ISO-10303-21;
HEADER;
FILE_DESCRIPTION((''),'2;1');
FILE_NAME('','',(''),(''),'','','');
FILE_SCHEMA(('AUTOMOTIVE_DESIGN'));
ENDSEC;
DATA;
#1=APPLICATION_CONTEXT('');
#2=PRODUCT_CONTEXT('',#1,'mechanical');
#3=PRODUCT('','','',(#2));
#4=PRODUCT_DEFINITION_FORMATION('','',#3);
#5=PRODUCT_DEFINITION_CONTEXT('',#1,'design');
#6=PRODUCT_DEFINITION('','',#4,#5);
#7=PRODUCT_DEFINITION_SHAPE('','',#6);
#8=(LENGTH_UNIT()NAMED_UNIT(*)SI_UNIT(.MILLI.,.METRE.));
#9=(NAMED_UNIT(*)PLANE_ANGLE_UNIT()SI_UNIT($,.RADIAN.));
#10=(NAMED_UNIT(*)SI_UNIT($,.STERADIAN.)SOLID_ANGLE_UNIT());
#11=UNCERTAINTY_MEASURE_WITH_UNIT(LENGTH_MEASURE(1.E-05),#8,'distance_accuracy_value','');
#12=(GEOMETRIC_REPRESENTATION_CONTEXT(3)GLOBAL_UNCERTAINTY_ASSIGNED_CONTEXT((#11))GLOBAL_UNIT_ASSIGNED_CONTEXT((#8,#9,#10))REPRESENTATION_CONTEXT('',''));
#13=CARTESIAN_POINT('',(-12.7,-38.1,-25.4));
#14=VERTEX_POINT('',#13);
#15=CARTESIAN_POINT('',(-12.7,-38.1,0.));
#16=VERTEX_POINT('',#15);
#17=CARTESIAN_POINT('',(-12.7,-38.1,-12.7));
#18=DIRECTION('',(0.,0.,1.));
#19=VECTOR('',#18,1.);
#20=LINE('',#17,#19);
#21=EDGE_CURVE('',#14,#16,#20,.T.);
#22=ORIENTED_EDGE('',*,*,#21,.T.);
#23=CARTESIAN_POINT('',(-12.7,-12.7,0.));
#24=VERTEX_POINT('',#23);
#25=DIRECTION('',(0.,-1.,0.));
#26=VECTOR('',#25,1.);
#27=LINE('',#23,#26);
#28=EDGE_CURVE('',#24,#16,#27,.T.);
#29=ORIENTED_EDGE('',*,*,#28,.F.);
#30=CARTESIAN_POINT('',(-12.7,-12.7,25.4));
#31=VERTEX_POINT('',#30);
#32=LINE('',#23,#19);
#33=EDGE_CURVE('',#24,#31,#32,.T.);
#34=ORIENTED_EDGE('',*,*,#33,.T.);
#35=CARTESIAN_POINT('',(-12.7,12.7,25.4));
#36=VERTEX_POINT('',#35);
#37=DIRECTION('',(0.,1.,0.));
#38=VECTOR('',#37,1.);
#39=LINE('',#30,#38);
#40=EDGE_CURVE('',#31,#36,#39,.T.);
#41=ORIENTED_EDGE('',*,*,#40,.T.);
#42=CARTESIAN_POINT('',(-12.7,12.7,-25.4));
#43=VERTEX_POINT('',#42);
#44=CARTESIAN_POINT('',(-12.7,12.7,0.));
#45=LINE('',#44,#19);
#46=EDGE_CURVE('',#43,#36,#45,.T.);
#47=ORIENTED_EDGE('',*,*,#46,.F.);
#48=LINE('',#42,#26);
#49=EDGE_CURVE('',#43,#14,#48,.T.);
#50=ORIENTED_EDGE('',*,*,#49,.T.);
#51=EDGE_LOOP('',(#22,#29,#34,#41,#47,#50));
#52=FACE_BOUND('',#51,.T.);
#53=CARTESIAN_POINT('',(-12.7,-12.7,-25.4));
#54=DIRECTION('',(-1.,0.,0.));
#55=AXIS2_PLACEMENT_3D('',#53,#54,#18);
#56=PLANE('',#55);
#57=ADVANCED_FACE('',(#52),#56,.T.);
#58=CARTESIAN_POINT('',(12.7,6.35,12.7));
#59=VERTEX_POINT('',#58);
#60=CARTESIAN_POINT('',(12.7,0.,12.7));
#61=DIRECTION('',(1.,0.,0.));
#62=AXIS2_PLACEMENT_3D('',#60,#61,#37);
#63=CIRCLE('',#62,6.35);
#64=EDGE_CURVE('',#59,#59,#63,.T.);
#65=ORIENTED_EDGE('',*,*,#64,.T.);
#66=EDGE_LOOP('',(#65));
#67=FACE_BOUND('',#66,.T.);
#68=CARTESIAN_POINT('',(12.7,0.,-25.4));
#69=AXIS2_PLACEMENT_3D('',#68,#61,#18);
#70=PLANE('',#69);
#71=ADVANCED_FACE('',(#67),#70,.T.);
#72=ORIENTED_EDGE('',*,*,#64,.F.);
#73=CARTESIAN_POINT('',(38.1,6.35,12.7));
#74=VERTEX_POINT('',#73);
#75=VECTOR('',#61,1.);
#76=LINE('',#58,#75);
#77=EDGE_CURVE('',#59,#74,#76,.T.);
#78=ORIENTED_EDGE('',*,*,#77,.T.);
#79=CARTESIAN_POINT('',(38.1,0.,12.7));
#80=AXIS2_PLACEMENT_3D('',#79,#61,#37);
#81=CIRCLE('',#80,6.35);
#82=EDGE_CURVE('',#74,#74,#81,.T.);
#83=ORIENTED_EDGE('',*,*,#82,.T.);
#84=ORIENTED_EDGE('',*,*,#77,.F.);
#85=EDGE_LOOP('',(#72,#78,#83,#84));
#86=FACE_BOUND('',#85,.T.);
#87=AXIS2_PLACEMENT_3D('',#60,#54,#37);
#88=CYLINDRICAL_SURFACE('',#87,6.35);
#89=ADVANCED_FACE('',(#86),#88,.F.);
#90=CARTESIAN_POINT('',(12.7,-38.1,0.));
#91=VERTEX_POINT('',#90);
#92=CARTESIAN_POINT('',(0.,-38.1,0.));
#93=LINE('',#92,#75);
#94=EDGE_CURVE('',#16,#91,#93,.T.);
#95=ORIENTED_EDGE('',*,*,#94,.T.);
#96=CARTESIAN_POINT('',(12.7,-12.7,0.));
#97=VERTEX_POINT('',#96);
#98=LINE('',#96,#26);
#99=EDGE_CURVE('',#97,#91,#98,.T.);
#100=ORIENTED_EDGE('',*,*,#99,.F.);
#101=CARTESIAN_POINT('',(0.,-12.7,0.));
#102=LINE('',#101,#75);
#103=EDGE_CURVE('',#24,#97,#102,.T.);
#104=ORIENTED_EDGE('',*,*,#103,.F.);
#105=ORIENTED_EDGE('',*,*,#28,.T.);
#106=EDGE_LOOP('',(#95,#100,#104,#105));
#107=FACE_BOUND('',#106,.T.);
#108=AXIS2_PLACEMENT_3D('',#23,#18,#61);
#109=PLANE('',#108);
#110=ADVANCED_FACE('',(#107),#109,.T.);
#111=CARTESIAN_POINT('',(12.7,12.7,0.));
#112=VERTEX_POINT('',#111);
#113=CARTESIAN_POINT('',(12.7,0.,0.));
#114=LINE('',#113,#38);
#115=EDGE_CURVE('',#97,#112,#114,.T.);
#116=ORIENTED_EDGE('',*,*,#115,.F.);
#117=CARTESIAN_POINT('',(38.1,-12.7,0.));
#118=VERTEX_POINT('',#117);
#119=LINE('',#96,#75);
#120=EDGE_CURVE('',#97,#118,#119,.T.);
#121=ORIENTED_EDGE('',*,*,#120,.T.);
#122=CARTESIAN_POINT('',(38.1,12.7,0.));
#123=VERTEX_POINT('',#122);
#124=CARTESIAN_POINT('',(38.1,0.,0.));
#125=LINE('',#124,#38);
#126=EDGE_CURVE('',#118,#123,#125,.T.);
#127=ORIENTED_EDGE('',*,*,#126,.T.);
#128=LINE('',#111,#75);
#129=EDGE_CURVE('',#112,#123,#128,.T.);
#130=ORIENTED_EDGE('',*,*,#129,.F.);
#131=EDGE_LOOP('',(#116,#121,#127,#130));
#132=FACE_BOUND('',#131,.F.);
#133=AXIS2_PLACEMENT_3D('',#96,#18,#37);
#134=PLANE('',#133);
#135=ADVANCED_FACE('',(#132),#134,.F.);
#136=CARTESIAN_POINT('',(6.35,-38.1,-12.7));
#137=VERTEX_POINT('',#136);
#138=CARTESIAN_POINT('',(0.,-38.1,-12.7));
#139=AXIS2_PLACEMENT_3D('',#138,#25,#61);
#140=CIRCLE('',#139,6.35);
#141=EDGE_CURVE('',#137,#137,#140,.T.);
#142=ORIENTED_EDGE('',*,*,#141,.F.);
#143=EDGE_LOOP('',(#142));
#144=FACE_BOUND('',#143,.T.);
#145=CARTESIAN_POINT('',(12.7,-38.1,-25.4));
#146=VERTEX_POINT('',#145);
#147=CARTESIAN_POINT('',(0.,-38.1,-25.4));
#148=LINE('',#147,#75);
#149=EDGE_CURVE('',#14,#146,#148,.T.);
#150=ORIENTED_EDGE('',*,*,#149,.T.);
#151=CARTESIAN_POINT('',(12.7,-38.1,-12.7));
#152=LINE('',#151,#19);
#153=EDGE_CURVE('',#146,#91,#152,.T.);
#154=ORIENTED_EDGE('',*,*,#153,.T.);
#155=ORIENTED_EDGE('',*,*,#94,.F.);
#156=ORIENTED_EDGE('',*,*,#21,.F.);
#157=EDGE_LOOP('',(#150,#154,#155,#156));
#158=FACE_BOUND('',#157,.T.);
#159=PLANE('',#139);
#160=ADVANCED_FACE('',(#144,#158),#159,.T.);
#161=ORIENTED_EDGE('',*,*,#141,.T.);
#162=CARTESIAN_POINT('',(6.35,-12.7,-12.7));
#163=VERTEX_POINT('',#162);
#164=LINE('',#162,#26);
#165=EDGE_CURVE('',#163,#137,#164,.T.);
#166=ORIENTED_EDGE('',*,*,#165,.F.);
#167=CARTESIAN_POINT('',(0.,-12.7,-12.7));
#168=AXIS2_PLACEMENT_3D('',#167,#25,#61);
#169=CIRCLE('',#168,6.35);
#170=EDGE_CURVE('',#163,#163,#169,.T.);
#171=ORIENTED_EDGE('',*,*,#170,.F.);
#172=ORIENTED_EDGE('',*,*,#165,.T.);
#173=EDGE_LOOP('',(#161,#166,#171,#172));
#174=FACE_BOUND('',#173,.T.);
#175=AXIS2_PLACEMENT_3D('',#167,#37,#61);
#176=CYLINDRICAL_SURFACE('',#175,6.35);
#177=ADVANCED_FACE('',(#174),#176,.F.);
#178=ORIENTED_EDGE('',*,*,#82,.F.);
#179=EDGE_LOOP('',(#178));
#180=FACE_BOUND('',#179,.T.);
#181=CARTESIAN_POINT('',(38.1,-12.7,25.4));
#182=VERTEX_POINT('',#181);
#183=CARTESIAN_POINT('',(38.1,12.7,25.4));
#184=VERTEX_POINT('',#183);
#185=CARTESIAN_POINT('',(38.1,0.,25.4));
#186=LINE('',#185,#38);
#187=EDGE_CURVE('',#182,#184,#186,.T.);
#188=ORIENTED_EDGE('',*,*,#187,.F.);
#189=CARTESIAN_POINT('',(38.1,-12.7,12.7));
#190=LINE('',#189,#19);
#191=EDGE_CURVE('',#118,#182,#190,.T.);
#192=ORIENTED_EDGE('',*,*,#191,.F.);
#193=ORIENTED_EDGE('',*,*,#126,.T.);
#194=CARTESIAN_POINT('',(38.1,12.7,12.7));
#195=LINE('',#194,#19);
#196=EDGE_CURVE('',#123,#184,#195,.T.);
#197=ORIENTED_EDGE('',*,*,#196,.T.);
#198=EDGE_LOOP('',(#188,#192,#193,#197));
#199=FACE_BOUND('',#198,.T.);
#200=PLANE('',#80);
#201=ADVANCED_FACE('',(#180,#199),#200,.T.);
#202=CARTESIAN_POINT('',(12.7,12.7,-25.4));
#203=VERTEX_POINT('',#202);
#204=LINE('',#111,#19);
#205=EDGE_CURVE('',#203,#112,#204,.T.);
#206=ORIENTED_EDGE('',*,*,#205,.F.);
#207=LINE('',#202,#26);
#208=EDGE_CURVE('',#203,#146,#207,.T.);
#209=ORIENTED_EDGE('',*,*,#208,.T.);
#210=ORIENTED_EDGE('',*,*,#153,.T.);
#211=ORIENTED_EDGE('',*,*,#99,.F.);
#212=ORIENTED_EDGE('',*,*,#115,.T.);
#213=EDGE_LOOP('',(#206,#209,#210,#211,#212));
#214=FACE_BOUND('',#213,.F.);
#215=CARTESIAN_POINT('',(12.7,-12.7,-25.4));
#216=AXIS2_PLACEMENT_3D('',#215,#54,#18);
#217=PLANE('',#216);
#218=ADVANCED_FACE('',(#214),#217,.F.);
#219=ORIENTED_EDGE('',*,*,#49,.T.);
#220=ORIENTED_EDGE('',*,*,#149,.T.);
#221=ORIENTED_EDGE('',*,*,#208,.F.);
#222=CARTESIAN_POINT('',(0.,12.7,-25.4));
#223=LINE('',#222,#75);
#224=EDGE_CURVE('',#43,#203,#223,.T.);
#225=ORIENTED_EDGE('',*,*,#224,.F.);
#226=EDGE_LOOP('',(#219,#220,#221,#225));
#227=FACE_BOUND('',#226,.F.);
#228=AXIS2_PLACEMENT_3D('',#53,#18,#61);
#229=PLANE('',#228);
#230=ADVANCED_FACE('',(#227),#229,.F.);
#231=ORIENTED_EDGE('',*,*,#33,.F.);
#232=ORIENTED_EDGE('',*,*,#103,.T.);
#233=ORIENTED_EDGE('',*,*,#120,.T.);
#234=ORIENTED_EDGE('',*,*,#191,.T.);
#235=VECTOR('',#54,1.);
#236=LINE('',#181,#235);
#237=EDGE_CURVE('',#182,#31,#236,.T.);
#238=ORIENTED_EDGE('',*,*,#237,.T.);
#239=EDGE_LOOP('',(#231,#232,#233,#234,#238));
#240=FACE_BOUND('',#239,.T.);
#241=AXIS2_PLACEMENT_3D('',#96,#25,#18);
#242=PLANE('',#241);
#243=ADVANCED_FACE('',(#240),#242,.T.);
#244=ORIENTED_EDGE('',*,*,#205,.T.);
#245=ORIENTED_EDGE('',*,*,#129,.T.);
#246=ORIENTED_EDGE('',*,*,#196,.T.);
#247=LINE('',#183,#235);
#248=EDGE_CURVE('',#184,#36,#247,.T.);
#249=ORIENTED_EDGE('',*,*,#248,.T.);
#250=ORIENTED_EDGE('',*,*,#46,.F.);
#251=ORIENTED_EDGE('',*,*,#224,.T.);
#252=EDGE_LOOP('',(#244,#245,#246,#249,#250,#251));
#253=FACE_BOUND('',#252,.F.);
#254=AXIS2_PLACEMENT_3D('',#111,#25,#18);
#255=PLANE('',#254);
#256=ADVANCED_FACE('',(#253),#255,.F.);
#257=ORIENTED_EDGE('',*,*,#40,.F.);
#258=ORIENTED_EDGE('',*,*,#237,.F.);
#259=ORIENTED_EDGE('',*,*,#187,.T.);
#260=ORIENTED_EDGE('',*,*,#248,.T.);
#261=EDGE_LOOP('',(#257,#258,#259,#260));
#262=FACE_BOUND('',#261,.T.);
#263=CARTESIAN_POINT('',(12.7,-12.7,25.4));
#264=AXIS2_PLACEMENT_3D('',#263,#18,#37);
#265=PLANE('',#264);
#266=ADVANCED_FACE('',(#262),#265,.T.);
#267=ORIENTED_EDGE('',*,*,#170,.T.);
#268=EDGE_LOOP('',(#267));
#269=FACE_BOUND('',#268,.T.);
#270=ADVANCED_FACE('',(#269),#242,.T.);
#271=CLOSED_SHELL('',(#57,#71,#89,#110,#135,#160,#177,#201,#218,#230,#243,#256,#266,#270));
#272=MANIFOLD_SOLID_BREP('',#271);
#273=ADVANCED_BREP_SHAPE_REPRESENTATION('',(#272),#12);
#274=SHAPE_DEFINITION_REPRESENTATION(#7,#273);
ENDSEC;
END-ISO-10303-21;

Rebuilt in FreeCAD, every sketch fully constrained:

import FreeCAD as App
import Part
import Sketcher

V = App.Vector
Q = App.Units.Quantity


def add_polygon(sketch, points):
    """Adds a closed chain of lines whose ends are joined by coincident constraints."""
    first, n = sketch.GeometryCount, len(points)
    for a, b in zip(points, points[1:] + points[:1]):
        sketch.addGeometry(Part.LineSegment(App.Vector(*a, 0), App.Vector(*b, 0)), False)
    for i in range(n):
        sketch.addConstraint(Sketcher.Constraint("Coincident", first + i, 2, first + (i + 1) % n, 1))

doc = App.newDocument("Part")
body = doc.addObject("PartDesign::Body", "Body")

sketch1 = body.newObject("Sketcher::SketchObject", "Sketch")
sketch1.AttachmentSupport = (doc.getObject("XZ_Plane"), [""])
sketch1.MapMode = "FlatFace"
add_polygon(sketch1, [(-13, 25), (-13, -25), (13, -25), (13, 25)])
sketch1.addConstraint([
    Sketcher.Constraint("Vertical", 0),
    Sketcher.Constraint("Horizontal", 1),
    Sketcher.Constraint("Vertical", 2),
    Sketcher.Constraint("Horizontal", 3),
    Sketcher.Constraint("Symmetric", 0, 2, 2, 2, -1, 1),
    Sketcher.Constraint("DistanceX", 1, 1, 1, 2, Q("1 in")),
    Sketcher.Constraint("DistanceY", 0, 2, 0, 1, Q("2 in")),
])
pad1 = body.newObject("PartDesign::Pad", "Pad")
pad1.Profile = sketch1
pad1.Length = Q("1 in")
pad1.Midplane = True

sketch2 = body.newObject("Sketcher::SketchObject", "Sketch001")
sketch2.AttachmentSupport = (doc.getObject("YZ_Plane"), [""])
sketch2.MapMode = "FlatFace"
sketch2.AttachmentOffset = App.Placement(V(0, 0, 0.5 * 25.4), App.Rotation())
add_polygon(sketch2, [(-13, 25), (-13, 0), (13, 0), (13, 25)])
sketch2.addGeometry(Part.Circle(V(0, 13, 0), V(0, 0, 1), 6), False)
sketch2.addConstraint([
    Sketcher.Constraint("Vertical", 0),
    Sketcher.Constraint("Horizontal", 1),
    Sketcher.Constraint("Vertical", 2),
    Sketcher.Constraint("Horizontal", 3),
    Sketcher.Constraint("Symmetric", 0, 2, 1, 2, -1, 1),
    Sketcher.Constraint("PointOnObject", 4, 3, -2),
    Sketcher.Constraint("Equal", 3, 0),
    Sketcher.Constraint("Diameter", 4, Q("0.5 in")),
    Sketcher.Constraint("DistanceX", 1, 1, 1, 2, Q("1 in")),
    Sketcher.Constraint("DistanceY", -1, 1, 4, 3, Q("0.5 in")),
])
pad2 = body.newObject("PartDesign::Pad", "Pad001")
pad2.Profile = sketch2
pad2.Length = Q("1 in")

sketch3 = body.newObject("Sketcher::SketchObject", "Sketch002")
sketch3.AttachmentSupport = (doc.getObject("XZ_Plane"), [""])
sketch3.MapMode = "FlatFace"
sketch3.AttachmentOffset = App.Placement(V(0, 0, 0.5 * 25.4), App.Rotation())
add_polygon(sketch3, [(-13, 0), (-13, -25), (13, -25), (13, 0)])
sketch3.addGeometry(Part.Circle(V(0, -13, 0), V(0, 0, 1), 6), False)
sketch3.addConstraint([
    Sketcher.Constraint("Vertical", 0),
    Sketcher.Constraint("Horizontal", 1),
    Sketcher.Constraint("Vertical", 2),
    Sketcher.Constraint("Horizontal", 3),
    Sketcher.Constraint("Symmetric", 2, 2, 3, 2, -1, 1),
    Sketcher.Constraint("PointOnObject", 4, 3, -2),
    Sketcher.Constraint("Equal", 3, 0),
    Sketcher.Constraint("Diameter", 4, Q("0.5 in")),
    Sketcher.Constraint("DistanceX", 1, 1, 1, 2, Q("1 in")),
    Sketcher.Constraint("DistanceY", 4, 3, -1, 1, Q("0.5 in")),
])
pad3 = body.newObject("PartDesign::Pad", "Pad002")
pad3.Profile = sketch3
pad3.Length = Q("1 in")

doc.recompute()
